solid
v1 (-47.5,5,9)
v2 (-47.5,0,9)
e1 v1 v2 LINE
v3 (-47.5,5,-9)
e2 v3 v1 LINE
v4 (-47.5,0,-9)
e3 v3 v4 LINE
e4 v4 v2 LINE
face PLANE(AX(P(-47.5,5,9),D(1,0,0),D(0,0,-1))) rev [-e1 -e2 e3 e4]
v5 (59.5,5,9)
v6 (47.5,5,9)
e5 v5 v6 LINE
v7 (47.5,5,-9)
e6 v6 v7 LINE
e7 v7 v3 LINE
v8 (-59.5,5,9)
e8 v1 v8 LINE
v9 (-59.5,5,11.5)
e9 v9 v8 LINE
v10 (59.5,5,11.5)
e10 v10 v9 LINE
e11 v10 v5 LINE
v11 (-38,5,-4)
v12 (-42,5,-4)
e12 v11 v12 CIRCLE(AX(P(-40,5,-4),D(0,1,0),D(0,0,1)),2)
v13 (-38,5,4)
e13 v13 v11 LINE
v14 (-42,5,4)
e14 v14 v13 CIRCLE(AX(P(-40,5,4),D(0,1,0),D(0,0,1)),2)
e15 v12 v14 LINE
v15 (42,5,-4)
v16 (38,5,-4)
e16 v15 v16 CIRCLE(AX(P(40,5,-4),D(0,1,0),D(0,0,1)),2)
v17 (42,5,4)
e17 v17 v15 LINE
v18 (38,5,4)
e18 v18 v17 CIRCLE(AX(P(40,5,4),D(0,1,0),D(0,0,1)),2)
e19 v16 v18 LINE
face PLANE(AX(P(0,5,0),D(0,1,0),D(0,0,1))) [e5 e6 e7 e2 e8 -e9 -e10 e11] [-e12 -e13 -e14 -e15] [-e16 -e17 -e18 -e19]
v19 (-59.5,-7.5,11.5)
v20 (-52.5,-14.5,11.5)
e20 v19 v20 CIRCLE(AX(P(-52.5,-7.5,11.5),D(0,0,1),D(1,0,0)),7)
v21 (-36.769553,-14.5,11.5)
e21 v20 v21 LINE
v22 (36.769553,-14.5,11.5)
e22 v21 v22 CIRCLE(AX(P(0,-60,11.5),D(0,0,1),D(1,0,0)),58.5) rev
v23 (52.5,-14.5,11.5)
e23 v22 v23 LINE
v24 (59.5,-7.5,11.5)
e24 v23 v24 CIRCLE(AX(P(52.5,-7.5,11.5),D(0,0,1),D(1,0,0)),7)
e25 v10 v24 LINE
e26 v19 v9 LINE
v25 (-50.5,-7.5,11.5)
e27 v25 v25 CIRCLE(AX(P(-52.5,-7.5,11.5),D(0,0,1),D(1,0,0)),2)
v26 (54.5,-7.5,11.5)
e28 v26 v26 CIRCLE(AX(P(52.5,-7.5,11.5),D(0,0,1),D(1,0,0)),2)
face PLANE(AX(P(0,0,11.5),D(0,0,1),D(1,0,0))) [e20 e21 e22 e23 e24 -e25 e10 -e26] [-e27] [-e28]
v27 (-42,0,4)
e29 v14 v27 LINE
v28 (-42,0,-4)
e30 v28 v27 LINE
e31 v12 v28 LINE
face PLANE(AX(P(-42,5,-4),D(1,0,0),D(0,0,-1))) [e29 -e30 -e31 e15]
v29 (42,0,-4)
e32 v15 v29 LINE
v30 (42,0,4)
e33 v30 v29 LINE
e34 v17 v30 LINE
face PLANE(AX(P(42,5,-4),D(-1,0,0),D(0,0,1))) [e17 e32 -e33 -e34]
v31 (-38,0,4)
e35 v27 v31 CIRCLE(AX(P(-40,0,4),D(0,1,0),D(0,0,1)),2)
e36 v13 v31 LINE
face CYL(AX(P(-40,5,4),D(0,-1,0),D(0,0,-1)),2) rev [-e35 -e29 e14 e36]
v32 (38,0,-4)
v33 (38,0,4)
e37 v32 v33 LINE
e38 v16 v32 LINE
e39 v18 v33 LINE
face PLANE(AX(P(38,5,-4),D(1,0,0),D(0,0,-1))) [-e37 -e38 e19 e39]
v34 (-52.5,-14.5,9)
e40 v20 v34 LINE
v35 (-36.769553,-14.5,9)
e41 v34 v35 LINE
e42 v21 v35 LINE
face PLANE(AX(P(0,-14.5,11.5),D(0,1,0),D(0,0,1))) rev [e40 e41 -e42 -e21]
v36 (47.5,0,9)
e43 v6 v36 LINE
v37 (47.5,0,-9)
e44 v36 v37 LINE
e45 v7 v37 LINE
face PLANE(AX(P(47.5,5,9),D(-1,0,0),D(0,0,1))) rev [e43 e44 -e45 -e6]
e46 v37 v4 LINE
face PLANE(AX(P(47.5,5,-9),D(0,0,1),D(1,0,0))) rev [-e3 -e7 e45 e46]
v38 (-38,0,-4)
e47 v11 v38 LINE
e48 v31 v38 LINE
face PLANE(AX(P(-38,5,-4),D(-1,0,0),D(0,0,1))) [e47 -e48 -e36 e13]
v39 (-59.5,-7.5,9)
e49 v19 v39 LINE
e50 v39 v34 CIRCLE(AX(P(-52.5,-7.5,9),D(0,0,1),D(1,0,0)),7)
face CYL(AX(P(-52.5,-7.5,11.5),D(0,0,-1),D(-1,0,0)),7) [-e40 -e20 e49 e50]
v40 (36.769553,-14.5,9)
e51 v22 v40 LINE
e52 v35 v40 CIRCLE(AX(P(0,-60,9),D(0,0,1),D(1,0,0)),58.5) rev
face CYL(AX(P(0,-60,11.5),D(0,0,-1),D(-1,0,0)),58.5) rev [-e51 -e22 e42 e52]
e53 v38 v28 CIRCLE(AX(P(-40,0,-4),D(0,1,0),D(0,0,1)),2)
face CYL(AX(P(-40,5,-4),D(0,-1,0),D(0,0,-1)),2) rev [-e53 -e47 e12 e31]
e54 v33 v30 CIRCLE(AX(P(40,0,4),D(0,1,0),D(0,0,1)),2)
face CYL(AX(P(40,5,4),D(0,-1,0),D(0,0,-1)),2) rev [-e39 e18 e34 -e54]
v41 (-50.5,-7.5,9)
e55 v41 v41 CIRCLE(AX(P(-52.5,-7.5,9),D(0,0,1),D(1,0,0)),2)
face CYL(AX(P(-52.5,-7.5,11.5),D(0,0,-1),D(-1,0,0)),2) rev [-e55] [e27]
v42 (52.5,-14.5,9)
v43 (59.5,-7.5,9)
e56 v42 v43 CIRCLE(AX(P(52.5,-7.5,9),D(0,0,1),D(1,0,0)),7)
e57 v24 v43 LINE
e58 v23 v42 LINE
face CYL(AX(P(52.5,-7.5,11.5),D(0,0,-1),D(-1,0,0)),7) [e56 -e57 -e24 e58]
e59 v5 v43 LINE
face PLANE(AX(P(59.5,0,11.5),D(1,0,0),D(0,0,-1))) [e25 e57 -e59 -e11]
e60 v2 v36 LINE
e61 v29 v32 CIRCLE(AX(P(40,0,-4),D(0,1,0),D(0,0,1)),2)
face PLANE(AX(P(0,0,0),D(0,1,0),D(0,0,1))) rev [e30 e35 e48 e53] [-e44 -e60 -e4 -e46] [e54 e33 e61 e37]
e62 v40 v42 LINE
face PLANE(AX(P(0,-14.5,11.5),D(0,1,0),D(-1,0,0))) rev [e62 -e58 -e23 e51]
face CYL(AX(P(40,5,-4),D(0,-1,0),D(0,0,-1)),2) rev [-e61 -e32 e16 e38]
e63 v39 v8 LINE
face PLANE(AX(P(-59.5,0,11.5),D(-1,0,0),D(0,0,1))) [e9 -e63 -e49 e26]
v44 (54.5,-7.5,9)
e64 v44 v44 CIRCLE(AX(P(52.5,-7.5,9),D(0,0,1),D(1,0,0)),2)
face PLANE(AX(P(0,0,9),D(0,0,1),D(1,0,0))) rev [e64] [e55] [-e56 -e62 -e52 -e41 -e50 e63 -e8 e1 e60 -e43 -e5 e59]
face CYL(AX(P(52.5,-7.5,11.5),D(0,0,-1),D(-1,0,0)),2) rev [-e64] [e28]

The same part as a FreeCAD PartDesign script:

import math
import FreeCAD as App
import Part
import Sketcher

V = App.Vector


def add_polygon(sketch, points):
    """Adds a closed chain of lines whose ends are joined by coincident constraints."""
    first, n = sketch.GeometryCount, len(points)
    for a, b in zip(points, points[1:] + points[:1]):
        sketch.addGeometry(Part.LineSegment(App.Vector(*a, 0), App.Vector(*b, 0)), False)
    for i in range(n):
        sketch.addConstraint(Sketcher.Constraint("Coincident", first + i, 2, first + (i + 1) % n, 1))

doc = App.newDocument("Part")
params = doc.addObject("Spreadsheet::Sheet", "Params")
for row, (alias, value) in enumerate([
    ("sketch1_radius", "2 mm"),
    ("sketch1_width", "95 mm"),
    ("sketch1_height", "18 mm"),
    ("sketch1_height2", "8 mm"),
    ("pad1_length", "5 mm"),
    ("sketch2_diameter", "4 mm"),
    ("sketch2_radius", "7 mm"),
    ("sketch2_radius2", "58.5 mm"),
    ("sketch2_width", "119 mm"),
    ("sketch2_height", "12.5 mm"),
    ("pad2_length", "2.5 mm"),
], start=1):
    params.set(f"A{row}", alias)
    params.set(f"B{row}", "=" + value)
    params.setAlias(f"B{row}", alias)

body = doc.addObject("PartDesign::Body", "Body")

sketch1 = body.newObject("Sketcher::SketchObject", "Sketch")
sketch1.AttachmentSupport = (doc.getObject("XZ_Plane"), [""])
sketch1.MapMode = "FlatFace"
add_polygon(sketch1, [(-47.5, -9), (-47.5, 9), (47.5, 9), (47.5, -9)])
sketch1.addGeometry(Part.ArcOfCircle(Part.Circle(V(-40, -4, 0), V(0, 0, 1), 2), math.radians(180), math.radians(360)), False)
sketch1.addGeometry(Part.LineSegment(V(-38, -4, 0), V(-38, 4, 0)), False)
sketch1.addGeometry(Part.ArcOfCircle(Part.Circle(V(-40, 4, 0), V(0, 0, 1), 2), math.radians(0), math.radians(180)), False)
sketch1.addGeometry(Part.LineSegment(V(-42, 4, 0), V(-42, -4, 0)), False)
sketch1.addGeometry(Part.ArcOfCircle(Part.Circle(V(40, -4, 0), V(0, 0, 1), 2), math.radians(180), math.radians(360)), False)
sketch1.addGeometry(Part.LineSegment(V(42, -4, 0), V(42, 4, 0)), False)
sketch1.addGeometry(Part.ArcOfCircle(Part.Circle(V(40, 4, 0), V(0, 0, 1), 2), math.radians(0), math.radians(180)), False)
sketch1.addGeometry(Part.LineSegment(V(38, 4, 0), V(38, -4, 0)), False)
sketch1.addConstraint(Sketcher.Constraint("Tangent", 4, 2, 5, 1))
sketch1.addConstraint(Sketcher.Constraint("Tangent", 5, 2, 6, 1))
sketch1.addConstraint(Sketcher.Constraint("Tangent", 6, 2, 7, 1))
sketch1.addConstraint(Sketcher.Constraint("Tangent", 7, 2, 4, 1))
sketch1.addConstraint(Sketcher.Constraint("Tangent", 8, 2, 9, 1))
sketch1.addConstraint(Sketcher.Constraint("Tangent", 9, 2, 10, 1))
sketch1.addConstraint(Sketcher.Constraint("Tangent", 10, 2, 11, 1))
sketch1.addConstraint(Sketcher.Constraint("Tangent", 11, 2, 8, 1))
sketch1.addConstraint(Sketcher.Constraint("Vertical", 0))
sketch1.addConstraint(Sketcher.Constraint("Horizontal", 1))
sketch1.addConstraint(Sketcher.Constraint("Vertical", 2))
sketch1.addConstraint(Sketcher.Constraint("Horizontal", 3))
sketch1.addConstraint(Sketcher.Constraint("Vertical", 5))
sketch1.addConstraint(Sketcher.Constraint("Vertical", 7))
sketch1.addConstraint(Sketcher.Constraint("Vertical", 9))
sketch1.addConstraint(Sketcher.Constraint("Vertical", 11))
sketch1.addConstraint(Sketcher.Constraint("Equal", 6, 8))
sketch1.addConstraint(Sketcher.Constraint("Symmetric", 6, 3, 8, 3, -1, 1))
sketch1.addConstraint(Sketcher.Constraint("Symmetric", 0, 2, 2, 2, -1, 1))
sketch1.addConstraint(Sketcher.Constraint("Horizontal", 4, 3, 8, 3))
sketch1.addConstraint(Sketcher.Constraint("Horizontal", 6, 3, 10, 3))
sketch1.addConstraint(Sketcher.Constraint("Radius", 4, 2.0))
sketch1.addConstraint(Sketcher.Constraint("DistanceX", 1, 1, 1, 2, 95.0))
sketch1.addConstraint(Sketcher.Constraint("DistanceY", 0, 1, 0, 2, 18.0))
sketch1.addConstraint(Sketcher.Constraint("DistanceY", 5, 1, 5, 2, 8.0))
sketch1.addConstraint(Sketcher.Constraint("DistanceX", 4, 3, -1, 1, 40.0))
sketch1.setExpression("Constraints[25]", "Params.sketch1_radius")
sketch1.setExpression("Constraints[26]", "Params.sketch1_width")
sketch1.setExpression("Constraints[27]", "Params.sketch1_height")
sketch1.setExpression("Constraints[28]", "Params.sketch1_height2")
pad1 = body.newObject("PartDesign::Pad", "Pad")
pad1.Profile = sketch1
pad1.setExpression("Length", "Params.pad1_length")
pad1.Reversed = True

sketch2 = body.newObject("Sketcher::SketchObject", "Sketch001")
sketch2.AttachmentSupport = (doc.getObject("XY_Plane"), [""])
sketch2.MapMode = "FlatFace"
sketch2.AttachmentOffset = App.Placement(V(0, 0, 9), App.Rotation())
sketch2.addGeometry(Part.LineSegment(V(-52.5, -14.5, 0), V(-36.769553, -14.5, 0)), False)
sketch2.addGeometry(Part.ArcOfCircle(Part.Circle(V(0, -60, 0), V(0, 0, 1), 58.5), math.radians(51.057559), math.radians(128.942441)), False)
sketch2.addGeometry(Part.LineSegment(V(36.769553, -14.5, 0), V(52.5, -14.5, 0)), False)
sketch2.addGeometry(Part.ArcOfCircle(Part.Circle(V(52.5, -7.5, 0), V(0, 0, 1), 7), math.radians(-90), math.radians(0)), False)
sketch2.addGeometry(Part.LineSegment(V(59.5, -7.5, 0), V(59.5, 5, 0)), False)
sketch2.addGeometry(Part.LineSegment(V(59.5, 5, 0), V(-59.5, 5, 0)), False)
sketch2.addGeometry(Part.LineSegment(V(-59.5, 5, 0), V(-59.5, -7.5, 0)), False)
sketch2.addGeometry(Part.ArcOfCircle(Part.Circle(V(-52.5, -7.5, 0), V(0, 0, 1), 7), math.radians(-180), math.radians(-90)), False)
sketch2.addGeometry(Part.Circle(V(-52.5, -7.5, 0), V(0, 0, 1), 2), False)
sketch2.addGeometry(Part.Circle(V(52.5, -7.5, 0), V(0, 0, 1), 2), False)
sketch2.addConstraint(Sketcher.Constraint("Coincident", 0, 2, 1, 2))
sketch2.addConstraint(Sketcher.Constraint("Coincident", 1, 1, 2, 1))
sketch2.addConstraint(Sketcher.Constraint("Tangent", 2, 2, 3, 1))
sketch2.addConstraint(Sketcher.Constraint("Tangent", 3, 2, 4, 1))
sketch2.addConstraint(Sketcher.Constraint("Coincident", 4, 2, 5, 1))
sketch2.addConstraint(Sketcher.Constraint("Coincident", 5, 2, 6, 1))
sketch2.addConstraint(Sketcher.Constraint("Tangent", 6, 2, 7, 1))
sketch2.addConstraint(Sketcher.Constraint("Tangent", 7, 2, 0, 1))
sketch2.addConstraint(Sketcher.Constraint("Horizontal", 0))
sketch2.addConstraint(Sketcher.Constraint("Horizontal", 2))
sketch2.addConstraint(Sketcher.Constraint("Vertical", 4))
sketch2.addConstraint(Sketcher.Constraint("Horizontal", 5))
sketch2.addConstraint(Sketcher.Constraint("Vertical", 6))
sketch2.addConstraint(Sketcher.Constraint("Coincident", 8, 3, 7, 3))
sketch2.addConstraint(Sketcher.Constraint("Coincident", 9, 3, 3, 3))
sketch2.addConstraint(Sketcher.Constraint("Equal", 3, 7))
sketch2.addConstraint(Sketcher.Constraint("Equal", 8, 9))
sketch2.addConstraint(Sketcher.Constraint("Symmetric", 3, 3, 7, 3, -2))
sketch2.addConstraint(Sketcher.Constraint("PointOnObject", 1, 3, -2))
sketch2.addConstraint(Sketcher.Constraint("Diameter", 8, 4.0))
sketch2.addConstraint(Sketcher.Constraint("Radius", 3, 7.0))
sketch2.addConstraint(Sketcher.Constraint("Radius", 1, 58.5))
sketch2.addConstraint(Sketcher.Constraint("DistanceX", 5, 2, 5, 1, 119.0))
sketch2.addConstraint(Sketcher.Constraint("DistanceY", 4, 1, 4, 2, 12.5))
sketch2.addConstraint(Sketcher.Constraint("DistanceY", 1, 3, -1, 1, 60.0))
sketch2.addConstraint(Sketcher.Constraint("DistanceY", -1, 1, 4, 2, 5.0))
sketch2.setExpression("Constraints[19]", "Params.sketch2_diameter")
sketch2.setExpression("Constraints[20]", "Params.sketch2_radius")
sketch2.setExpression("Constraints[21]", "Params.sketch2_radius2")
sketch2.setExpression("Constraints[22]", "Params.sketch2_width")
sketch2.setExpression("Constraints[23]", "Params.sketch2_height")
pad2 = body.newObject("PartDesign::Pad", "Pad001")
pad2.Profile = sketch2
pad2.setExpression("Length", "Params.pad2_length")

doc.recompute()
